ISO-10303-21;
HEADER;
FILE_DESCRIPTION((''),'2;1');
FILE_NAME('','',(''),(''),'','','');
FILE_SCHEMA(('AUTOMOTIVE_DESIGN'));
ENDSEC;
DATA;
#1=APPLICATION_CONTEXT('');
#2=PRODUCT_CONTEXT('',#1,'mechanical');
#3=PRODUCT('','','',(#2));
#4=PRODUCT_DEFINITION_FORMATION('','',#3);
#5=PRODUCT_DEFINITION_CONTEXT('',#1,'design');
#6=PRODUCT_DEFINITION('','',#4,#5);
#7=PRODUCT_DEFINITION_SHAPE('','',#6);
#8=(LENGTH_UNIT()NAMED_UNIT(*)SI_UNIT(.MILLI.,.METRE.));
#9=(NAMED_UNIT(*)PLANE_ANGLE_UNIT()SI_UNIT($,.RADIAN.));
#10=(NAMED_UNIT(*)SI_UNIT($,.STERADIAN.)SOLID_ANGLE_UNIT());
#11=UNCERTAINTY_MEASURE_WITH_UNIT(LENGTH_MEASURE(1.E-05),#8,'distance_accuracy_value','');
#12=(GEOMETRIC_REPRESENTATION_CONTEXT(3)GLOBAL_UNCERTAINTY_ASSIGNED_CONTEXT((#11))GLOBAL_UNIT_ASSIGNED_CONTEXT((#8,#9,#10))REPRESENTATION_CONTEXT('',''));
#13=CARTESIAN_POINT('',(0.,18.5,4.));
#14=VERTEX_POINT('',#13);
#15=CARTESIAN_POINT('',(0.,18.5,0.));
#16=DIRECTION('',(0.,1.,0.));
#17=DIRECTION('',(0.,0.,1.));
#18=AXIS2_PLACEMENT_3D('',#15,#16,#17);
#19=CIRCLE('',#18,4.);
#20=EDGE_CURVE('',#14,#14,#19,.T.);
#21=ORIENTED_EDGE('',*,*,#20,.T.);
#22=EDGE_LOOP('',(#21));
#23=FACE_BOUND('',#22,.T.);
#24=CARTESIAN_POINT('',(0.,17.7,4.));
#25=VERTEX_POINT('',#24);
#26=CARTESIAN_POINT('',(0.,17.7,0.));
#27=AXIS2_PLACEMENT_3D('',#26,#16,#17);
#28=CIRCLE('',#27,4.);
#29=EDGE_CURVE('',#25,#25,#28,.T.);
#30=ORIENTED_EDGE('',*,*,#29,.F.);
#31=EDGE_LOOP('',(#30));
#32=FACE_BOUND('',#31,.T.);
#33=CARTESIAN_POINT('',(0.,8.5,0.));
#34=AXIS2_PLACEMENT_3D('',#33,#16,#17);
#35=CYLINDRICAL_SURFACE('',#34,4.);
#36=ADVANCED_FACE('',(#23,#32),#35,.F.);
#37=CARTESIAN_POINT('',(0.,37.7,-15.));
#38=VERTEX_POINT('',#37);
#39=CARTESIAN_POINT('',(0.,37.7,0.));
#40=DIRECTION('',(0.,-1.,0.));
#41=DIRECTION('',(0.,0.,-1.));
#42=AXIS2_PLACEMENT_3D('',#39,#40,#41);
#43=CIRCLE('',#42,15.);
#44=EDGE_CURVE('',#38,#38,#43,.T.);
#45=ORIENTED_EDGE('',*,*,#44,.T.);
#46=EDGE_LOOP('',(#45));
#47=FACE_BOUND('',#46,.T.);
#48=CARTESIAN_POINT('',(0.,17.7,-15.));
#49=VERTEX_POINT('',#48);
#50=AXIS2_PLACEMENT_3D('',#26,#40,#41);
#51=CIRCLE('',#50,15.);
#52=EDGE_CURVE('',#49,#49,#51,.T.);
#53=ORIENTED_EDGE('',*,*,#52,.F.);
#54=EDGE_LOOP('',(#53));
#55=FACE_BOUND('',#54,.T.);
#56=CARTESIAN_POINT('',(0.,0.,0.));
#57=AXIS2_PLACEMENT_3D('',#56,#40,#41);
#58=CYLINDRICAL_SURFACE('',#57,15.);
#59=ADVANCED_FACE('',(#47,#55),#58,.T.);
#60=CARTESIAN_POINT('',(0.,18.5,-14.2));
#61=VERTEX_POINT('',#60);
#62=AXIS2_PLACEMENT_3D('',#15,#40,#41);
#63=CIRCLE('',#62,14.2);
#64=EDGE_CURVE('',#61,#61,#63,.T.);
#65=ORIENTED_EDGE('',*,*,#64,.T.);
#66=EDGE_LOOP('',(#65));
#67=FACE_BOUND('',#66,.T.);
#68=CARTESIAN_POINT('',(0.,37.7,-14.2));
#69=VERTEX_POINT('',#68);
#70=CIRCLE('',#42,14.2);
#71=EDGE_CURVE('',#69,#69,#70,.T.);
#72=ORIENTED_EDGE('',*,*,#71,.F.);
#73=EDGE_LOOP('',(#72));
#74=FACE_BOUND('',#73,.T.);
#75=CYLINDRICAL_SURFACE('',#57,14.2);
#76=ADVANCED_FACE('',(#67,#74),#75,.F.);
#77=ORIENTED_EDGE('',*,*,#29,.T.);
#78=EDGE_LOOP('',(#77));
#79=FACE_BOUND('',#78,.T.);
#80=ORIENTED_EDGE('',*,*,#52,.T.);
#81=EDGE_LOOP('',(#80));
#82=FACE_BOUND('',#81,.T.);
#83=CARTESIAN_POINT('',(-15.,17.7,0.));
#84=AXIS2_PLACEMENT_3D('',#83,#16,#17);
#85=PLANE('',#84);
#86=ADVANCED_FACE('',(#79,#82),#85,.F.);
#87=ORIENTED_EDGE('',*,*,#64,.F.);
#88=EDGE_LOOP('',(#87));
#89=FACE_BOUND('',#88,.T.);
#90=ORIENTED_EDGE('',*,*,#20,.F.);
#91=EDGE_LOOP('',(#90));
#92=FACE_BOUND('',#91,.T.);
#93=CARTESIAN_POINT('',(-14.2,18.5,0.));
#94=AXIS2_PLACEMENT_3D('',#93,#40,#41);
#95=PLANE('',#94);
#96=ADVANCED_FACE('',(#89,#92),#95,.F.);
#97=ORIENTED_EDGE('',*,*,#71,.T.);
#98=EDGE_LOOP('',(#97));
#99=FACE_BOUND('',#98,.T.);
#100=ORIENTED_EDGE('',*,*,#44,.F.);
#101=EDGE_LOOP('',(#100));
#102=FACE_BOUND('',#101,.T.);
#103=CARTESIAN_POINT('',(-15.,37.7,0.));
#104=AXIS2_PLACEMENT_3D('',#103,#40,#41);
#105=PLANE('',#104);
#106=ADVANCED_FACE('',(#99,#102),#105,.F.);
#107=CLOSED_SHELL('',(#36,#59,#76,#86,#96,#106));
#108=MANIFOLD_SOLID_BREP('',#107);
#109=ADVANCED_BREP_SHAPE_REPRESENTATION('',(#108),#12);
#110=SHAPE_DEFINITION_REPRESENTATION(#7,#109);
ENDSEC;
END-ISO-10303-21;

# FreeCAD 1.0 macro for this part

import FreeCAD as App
import Part
import Sketcher


def add_polygon(sketch, points):
    """Adds a closed chain of lines whose ends are joined by coincident constraints."""
    first, n = sketch.GeometryCount, len(points)
    for a, b in zip(points, points[1:] + points[:1]):
        sketch.addGeometry(Part.LineSegment(App.Vector(*a, 0), App.Vector(*b, 0)), False)
    for i in range(n):
        sketch.addConstraint(Sketcher.Constraint("Coincident", first + i, 2, first + (i + 1) % n, 1))

doc = App.newDocument("Part")
body = doc.addObject("PartDesign::Body", "Body")

sketch1 = body.newObject("Sketcher::SketchObject", "Sketch")
sketch1.AttachmentSupport = (doc.getObject("XY_Plane"), [""])
sketch1.MapMode = "FlatFace"
add_polygon(sketch1, [(-15, 37.7), (-15, 17.7), (0, 17.7), (0, 18.5), (-14.2, 18.5), (-14.2, 37.7)])
sketch1.addConstraint([
    Sketcher.Constraint("Vertical", 0),
    Sketcher.Constraint("Horizontal", 1),
    Sketcher.Constraint("Vertical", 2),
    Sketcher.Constraint("Horizontal", 3),
    Sketcher.Constraint("Vertical", 4),
    Sketcher.Constraint("Horizontal", 5),
    Sketcher.Constraint("PointOnObject", 1, 2, -2),
    Sketcher.Constraint("Equal", 5, 2),
    Sketcher.Constraint("DistanceX", 1, 1, 1, 2, 15.0),
    Sketcher.Constraint("DistanceY", 0, 2, 0, 1, 20.0),
    Sketcher.Constraint("DistanceX", 3, 2, 3, 1, 14.2),
    Sketcher.Constraint("DistanceY", -1, 1, 0, 2, 17.7),
])
revolution = body.newObject("PartDesign::Revolution", "Revolution")
revolution.Profile = sketch1
revolution.ReferenceAxis = (sketch1, ["V_Axis"])
revolution.Angle = 360

sketch2 = body.newObject("Sketcher::SketchObject", "Sketch001")
sketch2.AttachmentSupport = (doc.getObject("XZ_Plane"), [""])
sketch2.MapMode = "FlatFace"
sketch2.AttachmentOffset = App.Placement(App.Vector(0, 0, -18.5), App.Rotation())
sketch2.addGeometry(Part.Circle(App.Vector(0, 0, 0), App.Vector(0, 0, 1), 4), False)
sketch2.addConstraint([
    Sketcher.Constraint("Coincident", 0, 3, -1, 1),
    Sketcher.Constraint("Diameter", 0, 8.0),
])
pocket1 = body.newObject("PartDesign::Pocket", "Pocket")
pocket1.Profile = sketch2
pocket1.Length = 10
pocket1.Reversed = True

doc.recompute()
